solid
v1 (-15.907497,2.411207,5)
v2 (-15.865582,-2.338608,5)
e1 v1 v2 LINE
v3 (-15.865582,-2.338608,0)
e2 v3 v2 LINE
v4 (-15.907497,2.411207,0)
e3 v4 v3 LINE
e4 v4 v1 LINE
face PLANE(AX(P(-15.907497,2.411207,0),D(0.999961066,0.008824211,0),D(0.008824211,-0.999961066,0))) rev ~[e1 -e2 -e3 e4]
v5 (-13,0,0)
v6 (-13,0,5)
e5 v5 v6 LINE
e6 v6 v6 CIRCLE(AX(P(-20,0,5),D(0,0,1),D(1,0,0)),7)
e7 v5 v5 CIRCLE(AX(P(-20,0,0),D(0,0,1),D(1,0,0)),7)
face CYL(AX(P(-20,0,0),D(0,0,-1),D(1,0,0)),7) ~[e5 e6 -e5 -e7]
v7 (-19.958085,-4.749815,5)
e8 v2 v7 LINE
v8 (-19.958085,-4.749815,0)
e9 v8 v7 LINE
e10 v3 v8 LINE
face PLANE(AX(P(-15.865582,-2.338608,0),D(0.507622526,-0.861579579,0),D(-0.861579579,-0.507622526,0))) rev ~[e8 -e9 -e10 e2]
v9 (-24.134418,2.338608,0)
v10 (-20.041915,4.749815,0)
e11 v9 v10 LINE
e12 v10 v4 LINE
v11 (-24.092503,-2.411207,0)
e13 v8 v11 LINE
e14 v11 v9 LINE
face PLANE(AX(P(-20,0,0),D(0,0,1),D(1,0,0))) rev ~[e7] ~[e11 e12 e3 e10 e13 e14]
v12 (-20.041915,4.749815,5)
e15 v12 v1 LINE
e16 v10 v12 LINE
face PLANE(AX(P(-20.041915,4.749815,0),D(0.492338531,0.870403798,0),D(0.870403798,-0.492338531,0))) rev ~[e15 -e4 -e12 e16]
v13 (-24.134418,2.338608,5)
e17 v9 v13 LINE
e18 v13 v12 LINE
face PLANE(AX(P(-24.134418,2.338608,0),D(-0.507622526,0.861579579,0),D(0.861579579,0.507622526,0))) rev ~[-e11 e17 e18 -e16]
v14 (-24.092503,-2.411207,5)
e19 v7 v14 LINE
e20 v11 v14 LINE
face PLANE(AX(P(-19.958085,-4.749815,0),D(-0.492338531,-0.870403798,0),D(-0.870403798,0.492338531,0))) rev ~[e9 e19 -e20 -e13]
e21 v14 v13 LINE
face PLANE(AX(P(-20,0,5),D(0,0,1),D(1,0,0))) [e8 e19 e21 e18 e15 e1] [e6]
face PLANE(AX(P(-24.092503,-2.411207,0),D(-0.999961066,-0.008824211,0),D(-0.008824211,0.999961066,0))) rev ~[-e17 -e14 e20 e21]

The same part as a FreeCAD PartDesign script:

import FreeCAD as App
import Part
import Sketcher
Q = App.Units.Quantity

doc = App.newDocument("Part")
body = doc.addObject("PartDesign::Body", "Body")

# Sketch on XY plane
sketch1 = body.newObject("Sketcher::SketchObject", "Sketch")
sketch1.AttachmentSupport = (doc.getObject("XY_Plane"), [""])
sketch1.MapMode = "FlatFace"
sketch1.addGeometry([
    Part.Circle(App.Vector(-20, 0, 0), App.Vector(0, 0, 1), 7),  # 0
    Part.LineSegment(App.Vector(-15.865582, -2.338608, 0), App.Vector(-19.958085, -4.749815, 0)),  # 1
    Part.LineSegment(App.Vector(-19.958085, -4.749815, 0), App.Vector(-24.092503, -2.411207, 0)),  # 2
    Part.LineSegment(App.Vector(-24.092503, -2.411207, 0), App.Vector(-24.134418, 2.338608, 0)),  # 3
    Part.LineSegment(App.Vector(-24.134418, 2.338608, 0), App.Vector(-20.041915, 4.749815, 0)),  # 4
    Part.LineSegment(App.Vector(-20.041915, 4.749815, 0), App.Vector(-15.907497, 2.411207, 0)),  # 5
    Part.LineSegment(App.Vector(-15.907497, 2.411207, 0), App.Vector(-15.865582, -2.338608, 0)),  # 6
], False)
sketch1.addConstraint([
    Sketcher.Constraint("Coincident", 1, 2, 2, 1),
    Sketcher.Constraint("Coincident", 2, 2, 3, 1),
    Sketcher.Constraint("Coincident", 3, 2, 4, 1),
    Sketcher.Constraint("Coincident", 4, 2, 5, 1),
    Sketcher.Constraint("Coincident", 5, 2, 6, 1),
    Sketcher.Constraint("Coincident", 6, 2, 1, 1),
    Sketcher.Constraint("PointOnObject", 0, 3, -1),
    Sketcher.Constraint("Parallel", 1, 4),
    Sketcher.Constraint("Parallel", 2, 5),
    Sketcher.Constraint("Parallel", 3, 6),
    Sketcher.Constraint("Equal", 1, 2),
    Sketcher.Constraint("Equal", 2, 3),
    Sketcher.Constraint("Equal", 3, 4),
    Sketcher.Constraint("Diameter", 0, Q("14 mm")),
    Sketcher.Constraint("DistanceX", 0, 3, -1, 1, Q("20 mm")),
    Sketcher.Constraint("Distance", 1, Q("4.75 mm")),
    Sketcher.Constraint("DistanceY", 3, 2, 5, 2, Q("0.072599 mm")),
    Sketcher.Constraint("DistanceX", 3, 2, -1, 1, Q("24.134418 mm")),
    Sketcher.Constraint("DistanceX", 2, 2, 4, 2, Q("4.050588 mm")),
    Sketcher.Constraint("DistanceX", 4, 2, 1, 2, Q("0.08383 mm")),
    Sketcher.Constraint("DistanceY", 1, 2, -1, 1, Q("4.749815 mm")),
])
pad1 = body.newObject("PartDesign::Pad", "Pad")
pad1.Profile = sketch1
pad1.Length = 5

doc.recompute()
